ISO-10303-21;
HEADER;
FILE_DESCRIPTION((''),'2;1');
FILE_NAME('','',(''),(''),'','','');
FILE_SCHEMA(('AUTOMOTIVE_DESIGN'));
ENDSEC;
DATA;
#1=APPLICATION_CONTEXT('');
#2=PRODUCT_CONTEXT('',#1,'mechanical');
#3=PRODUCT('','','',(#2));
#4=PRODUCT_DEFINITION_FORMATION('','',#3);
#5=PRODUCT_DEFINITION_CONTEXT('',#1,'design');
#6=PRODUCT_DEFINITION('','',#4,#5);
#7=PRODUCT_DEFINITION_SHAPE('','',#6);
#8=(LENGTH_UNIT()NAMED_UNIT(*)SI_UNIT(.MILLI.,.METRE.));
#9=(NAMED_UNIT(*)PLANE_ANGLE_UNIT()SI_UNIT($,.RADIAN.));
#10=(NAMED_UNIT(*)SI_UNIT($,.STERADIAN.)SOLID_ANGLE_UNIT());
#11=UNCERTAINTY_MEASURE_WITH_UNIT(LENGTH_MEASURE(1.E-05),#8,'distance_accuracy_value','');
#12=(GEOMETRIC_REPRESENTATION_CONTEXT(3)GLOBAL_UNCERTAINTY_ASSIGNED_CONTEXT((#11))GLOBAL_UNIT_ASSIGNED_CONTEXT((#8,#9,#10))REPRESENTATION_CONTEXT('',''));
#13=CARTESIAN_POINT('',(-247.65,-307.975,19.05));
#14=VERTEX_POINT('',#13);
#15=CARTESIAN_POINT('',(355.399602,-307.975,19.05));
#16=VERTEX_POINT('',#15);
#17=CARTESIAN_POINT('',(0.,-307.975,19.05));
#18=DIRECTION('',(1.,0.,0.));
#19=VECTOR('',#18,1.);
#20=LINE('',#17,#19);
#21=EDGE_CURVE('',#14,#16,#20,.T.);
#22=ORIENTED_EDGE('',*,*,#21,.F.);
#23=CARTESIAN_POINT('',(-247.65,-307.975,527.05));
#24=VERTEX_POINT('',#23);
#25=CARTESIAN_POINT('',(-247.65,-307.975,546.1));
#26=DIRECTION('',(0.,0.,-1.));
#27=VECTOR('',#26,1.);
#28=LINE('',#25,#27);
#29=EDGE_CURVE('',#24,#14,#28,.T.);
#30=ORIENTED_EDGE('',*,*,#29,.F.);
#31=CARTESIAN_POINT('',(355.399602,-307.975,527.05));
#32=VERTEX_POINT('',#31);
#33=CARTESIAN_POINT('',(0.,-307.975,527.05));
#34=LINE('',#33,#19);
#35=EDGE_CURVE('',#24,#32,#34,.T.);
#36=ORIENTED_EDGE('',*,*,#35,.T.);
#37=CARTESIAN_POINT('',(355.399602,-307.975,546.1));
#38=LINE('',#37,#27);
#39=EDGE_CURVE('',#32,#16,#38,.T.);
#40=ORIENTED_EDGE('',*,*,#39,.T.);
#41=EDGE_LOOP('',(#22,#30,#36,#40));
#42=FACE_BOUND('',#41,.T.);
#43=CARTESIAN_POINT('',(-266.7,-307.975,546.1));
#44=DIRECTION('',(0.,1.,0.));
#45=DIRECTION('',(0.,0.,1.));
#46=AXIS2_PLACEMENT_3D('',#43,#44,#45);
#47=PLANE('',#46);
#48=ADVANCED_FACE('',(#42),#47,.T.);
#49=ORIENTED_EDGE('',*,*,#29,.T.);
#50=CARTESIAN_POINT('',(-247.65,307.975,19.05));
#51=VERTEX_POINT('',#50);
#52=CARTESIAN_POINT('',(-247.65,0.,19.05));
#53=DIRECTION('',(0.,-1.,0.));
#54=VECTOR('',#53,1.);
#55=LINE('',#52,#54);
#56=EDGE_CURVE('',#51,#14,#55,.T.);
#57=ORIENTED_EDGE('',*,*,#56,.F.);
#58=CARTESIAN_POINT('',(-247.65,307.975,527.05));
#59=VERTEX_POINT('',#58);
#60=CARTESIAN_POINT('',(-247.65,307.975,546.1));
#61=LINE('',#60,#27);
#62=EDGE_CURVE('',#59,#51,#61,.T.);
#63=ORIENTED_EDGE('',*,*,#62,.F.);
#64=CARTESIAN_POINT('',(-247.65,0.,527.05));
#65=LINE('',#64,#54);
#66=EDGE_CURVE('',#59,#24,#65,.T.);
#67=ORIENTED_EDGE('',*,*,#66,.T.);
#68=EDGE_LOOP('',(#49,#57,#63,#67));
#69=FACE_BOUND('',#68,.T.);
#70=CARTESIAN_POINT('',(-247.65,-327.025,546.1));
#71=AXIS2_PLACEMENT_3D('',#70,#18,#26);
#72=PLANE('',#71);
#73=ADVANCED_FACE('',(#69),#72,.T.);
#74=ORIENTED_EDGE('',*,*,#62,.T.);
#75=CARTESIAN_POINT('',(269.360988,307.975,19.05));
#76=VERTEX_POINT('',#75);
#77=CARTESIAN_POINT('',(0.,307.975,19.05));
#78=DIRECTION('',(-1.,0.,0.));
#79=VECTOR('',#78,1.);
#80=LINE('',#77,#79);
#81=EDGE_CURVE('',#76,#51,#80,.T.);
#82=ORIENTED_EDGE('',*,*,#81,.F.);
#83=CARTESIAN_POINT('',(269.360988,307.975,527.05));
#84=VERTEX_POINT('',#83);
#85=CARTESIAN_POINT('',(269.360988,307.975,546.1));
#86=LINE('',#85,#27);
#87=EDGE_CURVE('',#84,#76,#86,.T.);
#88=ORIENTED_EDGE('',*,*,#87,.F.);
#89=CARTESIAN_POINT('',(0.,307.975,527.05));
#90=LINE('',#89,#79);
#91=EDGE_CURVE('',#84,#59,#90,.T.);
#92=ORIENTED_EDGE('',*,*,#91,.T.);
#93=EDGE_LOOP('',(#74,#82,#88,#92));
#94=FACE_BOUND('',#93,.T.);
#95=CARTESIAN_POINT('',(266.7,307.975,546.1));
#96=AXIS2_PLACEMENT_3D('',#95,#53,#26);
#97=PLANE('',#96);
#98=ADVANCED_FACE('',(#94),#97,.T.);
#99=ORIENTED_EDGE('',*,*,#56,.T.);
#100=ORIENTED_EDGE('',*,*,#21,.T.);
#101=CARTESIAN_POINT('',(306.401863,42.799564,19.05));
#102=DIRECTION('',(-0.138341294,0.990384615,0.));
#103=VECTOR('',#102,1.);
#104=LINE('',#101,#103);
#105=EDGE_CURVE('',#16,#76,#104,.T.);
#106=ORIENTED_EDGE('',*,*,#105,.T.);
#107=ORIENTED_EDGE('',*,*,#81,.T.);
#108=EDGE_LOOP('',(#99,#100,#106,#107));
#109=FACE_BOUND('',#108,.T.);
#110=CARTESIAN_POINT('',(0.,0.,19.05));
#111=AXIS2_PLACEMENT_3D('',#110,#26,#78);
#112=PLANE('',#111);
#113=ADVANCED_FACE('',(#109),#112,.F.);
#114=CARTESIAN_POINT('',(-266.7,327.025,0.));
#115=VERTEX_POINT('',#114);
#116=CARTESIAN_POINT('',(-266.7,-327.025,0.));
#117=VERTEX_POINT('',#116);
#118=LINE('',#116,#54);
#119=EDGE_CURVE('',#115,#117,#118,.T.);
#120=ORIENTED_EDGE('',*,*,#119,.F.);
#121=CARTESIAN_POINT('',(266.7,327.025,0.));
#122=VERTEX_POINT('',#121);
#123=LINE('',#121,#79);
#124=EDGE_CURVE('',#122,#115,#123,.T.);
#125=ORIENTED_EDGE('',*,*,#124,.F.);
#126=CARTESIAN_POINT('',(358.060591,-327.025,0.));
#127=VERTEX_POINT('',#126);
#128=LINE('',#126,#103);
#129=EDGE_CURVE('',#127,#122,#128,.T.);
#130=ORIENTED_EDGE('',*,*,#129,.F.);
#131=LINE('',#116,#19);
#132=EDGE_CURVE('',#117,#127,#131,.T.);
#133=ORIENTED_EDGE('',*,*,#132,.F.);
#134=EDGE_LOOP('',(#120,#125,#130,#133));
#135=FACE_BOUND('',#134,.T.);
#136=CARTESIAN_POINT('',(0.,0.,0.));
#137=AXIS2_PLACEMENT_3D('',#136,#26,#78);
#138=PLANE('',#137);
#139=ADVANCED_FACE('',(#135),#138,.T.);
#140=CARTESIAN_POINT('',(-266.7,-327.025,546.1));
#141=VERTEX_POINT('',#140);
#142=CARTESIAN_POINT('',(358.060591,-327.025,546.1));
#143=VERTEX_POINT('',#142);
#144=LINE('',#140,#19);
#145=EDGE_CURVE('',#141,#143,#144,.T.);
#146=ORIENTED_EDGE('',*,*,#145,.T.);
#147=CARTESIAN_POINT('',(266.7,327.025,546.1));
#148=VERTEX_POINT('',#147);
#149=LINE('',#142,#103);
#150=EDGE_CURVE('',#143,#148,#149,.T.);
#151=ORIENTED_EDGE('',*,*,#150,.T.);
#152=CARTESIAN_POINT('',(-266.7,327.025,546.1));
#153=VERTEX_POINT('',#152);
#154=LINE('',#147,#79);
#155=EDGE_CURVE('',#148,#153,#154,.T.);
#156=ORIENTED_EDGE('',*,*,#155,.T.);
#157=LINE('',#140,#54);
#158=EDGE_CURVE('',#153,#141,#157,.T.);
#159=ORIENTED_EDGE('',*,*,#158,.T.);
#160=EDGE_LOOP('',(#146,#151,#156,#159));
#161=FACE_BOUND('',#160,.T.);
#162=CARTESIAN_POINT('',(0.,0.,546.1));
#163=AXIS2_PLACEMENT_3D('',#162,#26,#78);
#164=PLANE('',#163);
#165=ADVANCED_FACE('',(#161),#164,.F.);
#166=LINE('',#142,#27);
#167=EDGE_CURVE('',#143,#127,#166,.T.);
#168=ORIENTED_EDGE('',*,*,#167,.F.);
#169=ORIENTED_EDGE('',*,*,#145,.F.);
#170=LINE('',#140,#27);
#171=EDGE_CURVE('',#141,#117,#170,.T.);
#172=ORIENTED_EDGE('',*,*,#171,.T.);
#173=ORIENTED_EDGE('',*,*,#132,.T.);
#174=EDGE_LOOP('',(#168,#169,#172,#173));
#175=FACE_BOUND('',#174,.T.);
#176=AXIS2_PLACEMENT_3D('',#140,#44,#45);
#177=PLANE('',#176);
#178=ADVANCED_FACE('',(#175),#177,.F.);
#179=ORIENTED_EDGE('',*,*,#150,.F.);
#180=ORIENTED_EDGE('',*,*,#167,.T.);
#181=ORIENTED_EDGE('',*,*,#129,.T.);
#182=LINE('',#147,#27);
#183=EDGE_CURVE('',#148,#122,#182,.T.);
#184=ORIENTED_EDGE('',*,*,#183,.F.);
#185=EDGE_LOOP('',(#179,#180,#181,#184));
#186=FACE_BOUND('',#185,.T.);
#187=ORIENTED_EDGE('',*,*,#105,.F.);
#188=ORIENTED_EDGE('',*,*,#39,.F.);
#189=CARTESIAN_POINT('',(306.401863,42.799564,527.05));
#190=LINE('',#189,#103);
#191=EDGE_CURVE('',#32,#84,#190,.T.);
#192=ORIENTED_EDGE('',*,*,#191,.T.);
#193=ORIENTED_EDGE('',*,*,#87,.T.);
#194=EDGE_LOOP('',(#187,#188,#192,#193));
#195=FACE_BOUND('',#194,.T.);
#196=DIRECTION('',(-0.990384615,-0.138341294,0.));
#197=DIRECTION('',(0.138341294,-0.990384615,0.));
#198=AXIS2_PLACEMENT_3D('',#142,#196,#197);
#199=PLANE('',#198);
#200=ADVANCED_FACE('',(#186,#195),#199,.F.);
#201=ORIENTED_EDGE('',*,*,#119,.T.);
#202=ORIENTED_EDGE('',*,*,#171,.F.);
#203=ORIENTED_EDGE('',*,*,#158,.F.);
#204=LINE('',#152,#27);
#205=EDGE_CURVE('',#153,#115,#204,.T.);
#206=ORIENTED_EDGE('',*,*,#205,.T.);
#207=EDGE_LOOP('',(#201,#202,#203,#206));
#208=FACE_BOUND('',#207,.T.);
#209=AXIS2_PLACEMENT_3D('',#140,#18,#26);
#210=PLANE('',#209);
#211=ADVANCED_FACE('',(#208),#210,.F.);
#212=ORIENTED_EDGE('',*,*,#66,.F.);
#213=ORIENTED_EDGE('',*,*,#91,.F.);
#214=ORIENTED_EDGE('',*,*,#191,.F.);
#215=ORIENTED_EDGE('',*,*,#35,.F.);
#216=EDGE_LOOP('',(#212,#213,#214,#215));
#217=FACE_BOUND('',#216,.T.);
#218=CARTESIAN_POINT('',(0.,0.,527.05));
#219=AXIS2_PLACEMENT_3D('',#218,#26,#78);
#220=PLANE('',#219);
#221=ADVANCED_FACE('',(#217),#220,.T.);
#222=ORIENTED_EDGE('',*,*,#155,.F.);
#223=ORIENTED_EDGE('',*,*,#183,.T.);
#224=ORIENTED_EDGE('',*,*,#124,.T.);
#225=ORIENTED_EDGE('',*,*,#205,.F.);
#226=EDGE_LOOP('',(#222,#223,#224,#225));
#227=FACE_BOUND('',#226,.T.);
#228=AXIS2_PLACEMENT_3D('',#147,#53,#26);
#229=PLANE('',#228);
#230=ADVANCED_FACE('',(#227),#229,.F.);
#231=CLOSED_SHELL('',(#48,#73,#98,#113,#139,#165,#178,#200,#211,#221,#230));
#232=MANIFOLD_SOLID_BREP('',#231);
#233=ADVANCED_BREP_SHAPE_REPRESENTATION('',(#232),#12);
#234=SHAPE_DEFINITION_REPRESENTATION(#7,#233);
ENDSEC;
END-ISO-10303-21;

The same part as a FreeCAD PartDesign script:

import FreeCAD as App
import Part
import Sketcher

V = App.Vector
Q = App.Units.Quantity


def faces_at(feature, points):
    """Names of the faces that lie closest to the given points."""
    faces = feature.Shape.Faces
    near = lambda p: min(range(len(faces)), key=lambda i: faces[i].distToShape(Part.Vertex(*p))[0])
    return sorted({f"Face{near(p) + 1}" for p in points})

doc = App.newDocument("Part")
body = doc.addObject("PartDesign::Body", "Body")

sketch1 = body.newObject("Sketcher::SketchObject", "Sketch")
sketch1.AttachmentSupport = (doc.getObject("XY_Plane"), [""])
sketch1.MapMode = "FlatFace"
sketch1.addGeometry(Part.LineSegment(V(-267, 327, 0), V(-267, -327, 0)), False)
sketch1.addGeometry(Part.LineSegment(V(-267, -327, 0), V(358, -327, 0)), False)
sketch1.addGeometry(Part.LineSegment(V(358, -327, 0), V(267, 327, 0)), False)
sketch1.addGeometry(Part.LineSegment(V(267, 327, 0), V(-267, 327, 0)), False)
sketch1.addConstraint(Sketcher.Constraint("Coincident", 0, 2, 1, 1))
sketch1.addConstraint(Sketcher.Constraint("Coincident", 1, 2, 2, 1))
sketch1.addConstraint(Sketcher.Constraint("Coincident", 2, 2, 3, 1))
sketch1.addConstraint(Sketcher.Constraint("Coincident", 3, 2, 0, 1))
sketch1.addConstraint(Sketcher.Constraint("Vertical", 0))
sketch1.addConstraint(Sketcher.Constraint("Horizontal", 1))
sketch1.addConstraint(Sketcher.Constraint("Horizontal", 3))
sketch1.addConstraint(Sketcher.Constraint("Symmetric", 0, 2, 2, 2, -1, 1))
sketch1.addConstraint(Sketcher.Constraint("DistanceX", 3, 2, 3, 1, Q("21 in")))
sketch1.addConstraint(Sketcher.Constraint("Distance", 2, Q("26 in")))
sketch1.addConstraint(Sketcher.Constraint("DistanceY", 0, 2, 0, 1, Q("25.75 in")))
pad1 = body.newObject("PartDesign::Pad", "Pad")
pad1.Profile = sketch1
pad1.Length = Q("21.5 in")
doc.recompute()

thickness = body.newObject("PartDesign::Thickness", "Thickness")
thickness.Base = (pad1, faces_at(pad1, [(312.38, 0, 273.05)]))
thickness.Value = Q("0.75 in")
thickness.Reversed = True
thickness.Join = "Intersection"

doc.recompute()
